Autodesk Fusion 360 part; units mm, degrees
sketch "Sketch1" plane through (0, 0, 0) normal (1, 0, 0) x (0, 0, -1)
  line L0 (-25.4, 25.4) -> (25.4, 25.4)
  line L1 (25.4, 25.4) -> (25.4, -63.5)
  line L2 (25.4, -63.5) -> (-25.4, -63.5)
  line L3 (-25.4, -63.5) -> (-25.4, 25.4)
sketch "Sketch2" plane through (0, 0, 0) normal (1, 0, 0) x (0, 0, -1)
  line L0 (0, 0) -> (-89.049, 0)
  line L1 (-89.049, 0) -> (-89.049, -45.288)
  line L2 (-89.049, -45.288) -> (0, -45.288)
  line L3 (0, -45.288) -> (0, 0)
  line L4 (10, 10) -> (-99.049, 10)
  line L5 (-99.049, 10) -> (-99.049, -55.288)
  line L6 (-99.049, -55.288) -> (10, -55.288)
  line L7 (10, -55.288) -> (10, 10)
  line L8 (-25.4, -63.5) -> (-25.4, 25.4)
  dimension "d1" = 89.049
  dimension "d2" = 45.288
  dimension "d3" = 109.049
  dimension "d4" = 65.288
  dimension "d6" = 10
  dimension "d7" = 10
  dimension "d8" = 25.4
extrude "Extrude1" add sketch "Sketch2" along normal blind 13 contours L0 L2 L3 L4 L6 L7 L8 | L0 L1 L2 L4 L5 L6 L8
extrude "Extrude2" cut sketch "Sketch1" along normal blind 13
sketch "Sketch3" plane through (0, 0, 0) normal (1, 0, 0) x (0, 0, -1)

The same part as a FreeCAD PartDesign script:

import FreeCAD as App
import Part
import Sketcher
from FreeCAD import Vector
Q = App.Units.Quantity

doc = App.newDocument("Part")
body = doc.addObject("PartDesign::Body", "Body")

sketch1 = body.newObject("Sketcher::SketchObject", "Sketch")
sketch1.AttachmentSupport = (doc.getObject("YZ_Plane"), [""])
sketch1.MapMode = "FlatFace"
sketch1.addGeometry(Part.LineSegment(Vector(10, -10, 0), Vector(10, 99, 0)), False)
sketch1.addGeometry(Part.LineSegment(Vector(10, 99, 0), Vector(-55, 99, 0)), False)
sketch1.addGeometry(Part.LineSegment(Vector(-55, 99, 0), Vector(-55, -10, 0)), False)
sketch1.addGeometry(Part.LineSegment(Vector(-55, -10, 0), Vector(10, -10, 0)), False)
sketch1.addGeometry(Part.LineSegment(Vector(0, 0, 0), Vector(-45, 0, 0)), False)
sketch1.addGeometry(Part.LineSegment(Vector(-45, 0, 0), Vector(-45, 89, 0)), False)
sketch1.addGeometry(Part.LineSegment(Vector(-45, 89, 0), Vector(0, 89, 0)), False)
sketch1.addGeometry(Part.LineSegment(Vector(0, 89, 0), Vector(0, 0, 0)), False)
sketch1.addConstraint(Sketcher.Constraint("Coincident", 0, 2, 1, 1))
sketch1.addConstraint(Sketcher.Constraint("Coincident", 1, 2, 2, 1))
sketch1.addConstraint(Sketcher.Constraint("Coincident", 2, 2, 3, 1))
sketch1.addConstraint(Sketcher.Constraint("Coincident", 3, 2, 0, 1))
sketch1.addConstraint(Sketcher.Constraint("Coincident", 4, 2, 5, 1))
sketch1.addConstraint(Sketcher.Constraint("Coincident", 5, 2, 6, 1))
sketch1.addConstraint(Sketcher.Constraint("Coincident", 6, 2, 7, 1))
sketch1.addConstraint(Sketcher.Constraint("Coincident", 7, 2, 4, 1))
sketch1.addConstraint(Sketcher.Constraint("Vertical", 0))
sketch1.addConstraint(Sketcher.Constraint("Horizontal", 1))
sketch1.addConstraint(Sketcher.Constraint("Vertical", 2))
sketch1.addConstraint(Sketcher.Constraint("Horizontal", 3))
sketch1.addConstraint(Sketcher.Constraint("Horizontal", 4))
sketch1.addConstraint(Sketcher.Constraint("Vertical", 5))
sketch1.addConstraint(Sketcher.Constraint("Horizontal", 6))
sketch1.addConstraint(Sketcher.Constraint("Vertical", 7))
sketch1.addConstraint(Sketcher.Constraint("Coincident", 7, 2, -1, 1))
sketch1.addConstraint(Sketcher.Constraint("DistanceX", 4, 2, 4, 1, Q("1.783 in")))
sketch1.addConstraint(Sketcher.Constraint("DistanceX", 1, 2, 1, 1, Q("2.5704 in")))
sketch1.addConstraint(Sketcher.Constraint("DistanceY", 0, 1, 0, 2, Q("109.049 mm")))
sketch1.addConstraint(Sketcher.Constraint("DistanceY", 5, 1, 5, 2, Q("89.049 mm")))
sketch1.addConstraint(Sketcher.Constraint("DistanceX", -1, 1, 0, 2, Q("0.3937 in")))
sketch1.addConstraint(Sketcher.Constraint("DistanceY", 2, 2, -1, 1, Q("0.3937 in")))
pad1 = body.newObject("PartDesign::Pad", "Pad")
pad1.Profile = sketch1
pad1.Length = Q("0.511811 in")

sketch2 = body.newObject("Sketcher::SketchObject", "Sketch001")
sketch2.AttachmentSupport = (doc.getObject("YZ_Plane"), [""])
sketch2.MapMode = "FlatFace"
sketch2.addGeometry(Part.LineSegment(Vector(25, -25, 0), Vector(25, 25, 0)), False)
sketch2.addGeometry(Part.LineSegment(Vector(25, 25, 0), Vector(-64, 25, 0)), False)
sketch2.addGeometry(Part.LineSegment(Vector(-64, 25, 0), Vector(-64, -25, 0)), False)
sketch2.addGeometry(Part.LineSegment(Vector(-64, -25, 0), Vector(25, -25, 0)), False)
sketch2.addConstraint(Sketcher.Constraint("Coincident", 0, 2, 1, 1))
sketch2.addConstraint(Sketcher.Constraint("Coincident", 1, 2, 2, 1))
sketch2.addConstraint(Sketcher.Constraint("Coincident", 2, 2, 3, 1))
sketch2.addConstraint(Sketcher.Constraint("Coincident", 3, 2, 0, 1))
sketch2.addConstraint(Sketcher.Constraint("Vertical", 0))
sketch2.addConstraint(Sketcher.Constraint("Horizontal", 1))
sketch2.addConstraint(Sketcher.Constraint("Vertical", 2))
sketch2.addConstraint(Sketcher.Constraint("Horizontal", 3))
sketch2.addConstraint(Sketcher.Constraint("DistanceY", 0, 1, 0, 2, Q("2 in")))
sketch2.addConstraint(Sketcher.Constraint("DistanceX", 1, 2, 1, 1, Q("3.5 in")))
sketch2.addConstraint(Sketcher.Constraint("DistanceX", -1, 1, 0, 2, Q("1 in")))
sketch2.addConstraint(Sketcher.Constraint("DistanceY", -1, 1, 0, 2, Q("1 in")))
pocket1 = body.newObject("PartDesign::Pocket", "Pocket")
pocket1.Profile = sketch2
pocket1.Length = Q("0.511811 in")
pocket1.Reversed = True

doc.recompute()
